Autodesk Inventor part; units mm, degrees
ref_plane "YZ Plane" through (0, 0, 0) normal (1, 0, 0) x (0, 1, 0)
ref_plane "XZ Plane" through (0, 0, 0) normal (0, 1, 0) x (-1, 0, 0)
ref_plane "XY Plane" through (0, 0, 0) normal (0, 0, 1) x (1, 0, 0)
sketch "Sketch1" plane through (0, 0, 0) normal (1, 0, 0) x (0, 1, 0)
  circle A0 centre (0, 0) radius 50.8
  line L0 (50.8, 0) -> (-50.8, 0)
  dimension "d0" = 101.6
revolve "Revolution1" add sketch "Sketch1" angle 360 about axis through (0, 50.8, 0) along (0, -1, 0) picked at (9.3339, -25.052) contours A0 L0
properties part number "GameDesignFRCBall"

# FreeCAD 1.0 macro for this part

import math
import FreeCAD as App
import Part
import Sketcher
from FreeCAD import Vector
Q = App.Units.Quantity

doc = App.newDocument("Part")
body = doc.addObject("PartDesign::Body", "Body")

# Sketch on YZ plane
sketch1 = body.newObject("Sketcher::SketchObject", "Sketch")
sketch1.AttachmentSupport = (doc.getObject("YZ_Plane"), [""])
sketch1.MapMode = "FlatFace"
sketch1.addGeometry([
    Part.ArcOfCircle(Part.Circle(Vector(0, 0, 0), Vector(0, 0, 1), 51), math.radians(180), math.radians(360)),
    Part.LineSegment(Vector(51, 0, 0), Vector(-51, 0, 0)),
], False)
sketch1.addConstraint([
    Sketcher.Constraint("Coincident", 0, 1, 1, 2),
    Sketcher.Constraint("Coincident", 1, 1, 0, 2),
    Sketcher.Constraint("Horizontal", 1),
    Sketcher.Constraint("Coincident", 0, 3, -1, 1),
    Sketcher.Constraint("PointOnObject", 0, 1, -1),
    Sketcher.Constraint("Radius", 0, Q("2 in")),
])
revolution = body.newObject("PartDesign::Revolution", "Revolution")
revolution.Profile = sketch1
revolution.ReferenceAxis = (sketch1, ["H_Axis"])
revolution.Angle = 360

doc.recompute()
